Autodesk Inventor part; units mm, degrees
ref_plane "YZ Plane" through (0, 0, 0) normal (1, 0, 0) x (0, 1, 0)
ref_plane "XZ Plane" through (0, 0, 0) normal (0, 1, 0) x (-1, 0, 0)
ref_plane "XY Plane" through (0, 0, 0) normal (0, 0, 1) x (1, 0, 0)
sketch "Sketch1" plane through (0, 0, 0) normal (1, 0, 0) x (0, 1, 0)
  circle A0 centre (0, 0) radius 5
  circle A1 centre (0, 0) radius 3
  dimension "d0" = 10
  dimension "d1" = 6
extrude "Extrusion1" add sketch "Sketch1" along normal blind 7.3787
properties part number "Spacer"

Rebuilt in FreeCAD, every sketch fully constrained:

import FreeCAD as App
import Part
import Sketcher
from FreeCAD import Vector
Q = App.Units.Quantity

doc = App.newDocument("Part")
body = doc.addObject("PartDesign::Body", "Body")

sketch1 = doc.addObject("Sketcher::SketchObject", "Sketch")
body.addObject(sketch1)
sketch1.AttachmentSupport = (doc.YZ_Plane, [""])
sketch1.MapMode = "FlatFace"
sketch1.addGeometry(Part.Circle(Vector(0, 0, 0), Vector(0, 0, 1), 5), False)
sketch1.addGeometry(Part.Circle(Vector(0, 0, 0), Vector(0, 0, 1), 3), False)
sketch1.addConstraint(Sketcher.Constraint("Coincident", 0, 3, -1, 1))
sketch1.addConstraint(Sketcher.Constraint("Coincident", 1, 3, -1, 1))
sketch1.addConstraint(Sketcher.Constraint("Diameter", 0, Q("10 mm")))
sketch1.addConstraint(Sketcher.Constraint("Diameter", 1, Q("6 mm")))
pad1 = doc.addObject("PartDesign::Pad", "Pad")
body.addObject(pad1)
pad1.Profile = sketch1
pad1.Length = 7.3787

doc.recompute()
